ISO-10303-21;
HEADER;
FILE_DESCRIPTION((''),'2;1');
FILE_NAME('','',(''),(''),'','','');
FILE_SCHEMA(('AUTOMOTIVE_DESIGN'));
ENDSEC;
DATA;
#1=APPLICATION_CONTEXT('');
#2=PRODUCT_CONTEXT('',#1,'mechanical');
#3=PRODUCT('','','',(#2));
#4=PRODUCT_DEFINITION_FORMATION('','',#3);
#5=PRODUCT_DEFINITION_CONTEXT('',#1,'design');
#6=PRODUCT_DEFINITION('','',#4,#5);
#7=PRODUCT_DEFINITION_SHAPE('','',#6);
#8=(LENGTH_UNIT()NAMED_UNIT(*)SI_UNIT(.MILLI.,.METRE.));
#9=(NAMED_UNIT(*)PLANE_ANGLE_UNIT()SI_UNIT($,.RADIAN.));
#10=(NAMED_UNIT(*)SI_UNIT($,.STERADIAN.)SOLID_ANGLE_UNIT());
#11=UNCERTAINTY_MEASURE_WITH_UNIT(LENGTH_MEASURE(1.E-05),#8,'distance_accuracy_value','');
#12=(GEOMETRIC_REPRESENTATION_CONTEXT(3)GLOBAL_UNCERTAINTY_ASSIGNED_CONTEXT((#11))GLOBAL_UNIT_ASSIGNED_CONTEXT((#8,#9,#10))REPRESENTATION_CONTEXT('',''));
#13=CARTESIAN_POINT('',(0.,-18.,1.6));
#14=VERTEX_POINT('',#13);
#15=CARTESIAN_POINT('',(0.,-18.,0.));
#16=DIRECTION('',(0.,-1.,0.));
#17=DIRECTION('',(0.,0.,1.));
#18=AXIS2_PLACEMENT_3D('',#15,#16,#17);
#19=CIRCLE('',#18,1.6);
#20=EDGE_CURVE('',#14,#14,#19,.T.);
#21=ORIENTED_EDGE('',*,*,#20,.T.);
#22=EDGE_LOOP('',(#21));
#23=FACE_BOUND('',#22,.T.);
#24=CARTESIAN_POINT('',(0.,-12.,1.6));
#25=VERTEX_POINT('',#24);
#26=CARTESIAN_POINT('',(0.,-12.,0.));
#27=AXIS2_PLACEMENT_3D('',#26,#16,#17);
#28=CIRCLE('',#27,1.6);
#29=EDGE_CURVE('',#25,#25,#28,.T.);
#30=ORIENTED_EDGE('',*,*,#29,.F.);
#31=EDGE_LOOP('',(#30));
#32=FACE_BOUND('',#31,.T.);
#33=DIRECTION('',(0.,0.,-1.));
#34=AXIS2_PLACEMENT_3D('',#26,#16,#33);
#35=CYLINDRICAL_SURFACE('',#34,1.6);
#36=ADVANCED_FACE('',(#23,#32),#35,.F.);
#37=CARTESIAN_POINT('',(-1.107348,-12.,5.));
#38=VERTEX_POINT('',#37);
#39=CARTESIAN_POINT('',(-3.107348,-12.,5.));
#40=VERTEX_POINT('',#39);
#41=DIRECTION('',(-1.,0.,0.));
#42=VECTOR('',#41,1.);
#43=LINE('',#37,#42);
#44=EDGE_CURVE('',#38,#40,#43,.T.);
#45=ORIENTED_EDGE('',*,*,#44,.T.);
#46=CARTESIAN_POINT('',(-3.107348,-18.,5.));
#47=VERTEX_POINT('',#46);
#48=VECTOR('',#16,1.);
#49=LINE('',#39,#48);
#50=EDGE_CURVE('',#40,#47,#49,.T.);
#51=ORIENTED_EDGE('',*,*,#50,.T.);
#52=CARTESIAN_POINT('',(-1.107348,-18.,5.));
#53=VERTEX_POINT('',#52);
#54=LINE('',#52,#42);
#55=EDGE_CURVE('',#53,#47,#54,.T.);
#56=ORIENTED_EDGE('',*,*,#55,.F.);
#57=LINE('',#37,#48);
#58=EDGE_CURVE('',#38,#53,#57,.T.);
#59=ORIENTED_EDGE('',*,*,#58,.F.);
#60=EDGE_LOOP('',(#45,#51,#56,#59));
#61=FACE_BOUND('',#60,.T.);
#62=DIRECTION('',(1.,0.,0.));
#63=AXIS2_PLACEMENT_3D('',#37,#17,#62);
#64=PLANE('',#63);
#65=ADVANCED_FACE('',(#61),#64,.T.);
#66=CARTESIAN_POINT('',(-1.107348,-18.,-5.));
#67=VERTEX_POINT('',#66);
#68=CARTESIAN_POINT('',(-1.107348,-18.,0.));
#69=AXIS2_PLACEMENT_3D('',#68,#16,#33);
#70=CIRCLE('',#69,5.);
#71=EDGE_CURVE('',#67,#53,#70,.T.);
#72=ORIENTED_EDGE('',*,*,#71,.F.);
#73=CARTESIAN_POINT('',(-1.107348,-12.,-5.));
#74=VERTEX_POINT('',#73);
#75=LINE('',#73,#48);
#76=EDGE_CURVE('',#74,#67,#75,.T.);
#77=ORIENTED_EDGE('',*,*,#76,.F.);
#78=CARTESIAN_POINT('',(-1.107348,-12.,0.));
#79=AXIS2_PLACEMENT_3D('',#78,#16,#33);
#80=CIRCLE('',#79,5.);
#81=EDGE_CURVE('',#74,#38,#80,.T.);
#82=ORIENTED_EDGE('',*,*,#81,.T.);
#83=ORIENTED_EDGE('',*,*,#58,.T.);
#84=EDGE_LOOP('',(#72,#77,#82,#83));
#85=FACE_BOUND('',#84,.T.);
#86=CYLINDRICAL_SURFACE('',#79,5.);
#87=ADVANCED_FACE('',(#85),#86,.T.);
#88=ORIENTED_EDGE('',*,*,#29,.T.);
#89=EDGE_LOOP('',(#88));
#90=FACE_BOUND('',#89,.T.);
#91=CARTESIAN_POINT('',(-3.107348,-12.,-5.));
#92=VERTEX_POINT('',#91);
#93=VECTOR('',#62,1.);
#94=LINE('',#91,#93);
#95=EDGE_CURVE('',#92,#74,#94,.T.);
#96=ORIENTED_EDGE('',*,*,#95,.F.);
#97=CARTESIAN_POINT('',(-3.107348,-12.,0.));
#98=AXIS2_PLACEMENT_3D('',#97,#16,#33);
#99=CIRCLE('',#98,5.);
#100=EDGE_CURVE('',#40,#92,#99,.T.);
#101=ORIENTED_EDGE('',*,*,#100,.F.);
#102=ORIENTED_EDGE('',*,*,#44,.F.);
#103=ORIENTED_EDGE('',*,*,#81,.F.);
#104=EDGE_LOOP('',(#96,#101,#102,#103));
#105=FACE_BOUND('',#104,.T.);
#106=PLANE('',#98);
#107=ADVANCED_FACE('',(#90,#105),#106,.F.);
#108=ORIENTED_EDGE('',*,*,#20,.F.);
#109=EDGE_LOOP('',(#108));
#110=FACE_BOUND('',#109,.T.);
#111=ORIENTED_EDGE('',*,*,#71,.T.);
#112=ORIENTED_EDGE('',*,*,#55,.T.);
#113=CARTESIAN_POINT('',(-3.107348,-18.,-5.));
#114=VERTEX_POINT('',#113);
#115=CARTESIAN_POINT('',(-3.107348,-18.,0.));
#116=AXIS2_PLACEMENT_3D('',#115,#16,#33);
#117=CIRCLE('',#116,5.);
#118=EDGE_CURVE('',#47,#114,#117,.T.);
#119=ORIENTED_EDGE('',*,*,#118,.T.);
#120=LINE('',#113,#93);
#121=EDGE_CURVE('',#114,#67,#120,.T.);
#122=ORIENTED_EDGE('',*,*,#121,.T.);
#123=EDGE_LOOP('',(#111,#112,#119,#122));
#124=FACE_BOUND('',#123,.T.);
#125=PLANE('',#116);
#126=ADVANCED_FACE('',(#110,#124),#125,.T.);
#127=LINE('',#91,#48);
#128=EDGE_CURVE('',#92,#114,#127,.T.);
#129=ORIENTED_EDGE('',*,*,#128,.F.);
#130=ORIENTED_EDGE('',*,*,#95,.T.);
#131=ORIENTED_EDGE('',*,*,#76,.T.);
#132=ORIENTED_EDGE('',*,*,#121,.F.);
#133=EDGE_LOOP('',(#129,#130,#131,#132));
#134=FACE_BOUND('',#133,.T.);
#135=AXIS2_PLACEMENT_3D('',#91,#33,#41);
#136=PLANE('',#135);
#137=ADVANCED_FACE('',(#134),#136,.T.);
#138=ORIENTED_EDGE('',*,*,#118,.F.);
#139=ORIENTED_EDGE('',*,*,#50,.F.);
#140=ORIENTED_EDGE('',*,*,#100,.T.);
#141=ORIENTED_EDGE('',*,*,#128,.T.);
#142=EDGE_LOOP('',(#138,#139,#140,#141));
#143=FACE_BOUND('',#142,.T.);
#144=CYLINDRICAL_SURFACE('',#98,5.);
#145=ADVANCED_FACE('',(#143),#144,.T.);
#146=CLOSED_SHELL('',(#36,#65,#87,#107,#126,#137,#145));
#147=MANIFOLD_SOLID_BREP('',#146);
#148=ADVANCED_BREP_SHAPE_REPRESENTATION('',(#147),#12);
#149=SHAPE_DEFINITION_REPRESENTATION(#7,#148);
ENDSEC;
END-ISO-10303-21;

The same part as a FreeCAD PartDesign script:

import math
import FreeCAD as App
import Part
import Sketcher
Q = App.Units.Quantity

doc = App.newDocument("Part")
body = doc.addObject("PartDesign::Body", "Body")

# Sketch on XZ plane
sketch1 = body.newObject("Sketcher::SketchObject", "Sketch")
sketch1.AttachmentSupport = (doc.getObject("XZ_Plane"), [""])
sketch1.MapMode = "FlatFace"
sketch1.AttachmentOffset = App.Placement(App.Vector(0, 0, 18), App.Rotation())
sketch1.addGeometry([
    Part.LineSegment(App.Vector(-3.1, -5, 0), App.Vector(-1.1, -5, 0)),  # 0
    Part.ArcOfCircle(Part.Circle(App.Vector(-1.1, 0, 0), App.Vector(0, 0, 1), 5), math.radians(-90), math.radians(90)),  # 1
    Part.LineSegment(App.Vector(-1.1, 5, 0), App.Vector(-3.1, 5, 0)),  # 2
    Part.ArcOfCircle(Part.Circle(App.Vector(-3.1, 0, 0), App.Vector(0, 0, 1), 5), math.radians(90), math.radians(270)),  # 3
    Part.Circle(App.Vector(0, 0, 0), App.Vector(0, 0, 1), 1.6),  # 4
], False)
sketch1.addConstraint([
    Sketcher.Constraint("Tangent", 0, 2, 1, 1),
    Sketcher.Constraint("Tangent", 1, 2, 2, 1),
    Sketcher.Constraint("Tangent", 2, 2, 3, 1),
    Sketcher.Constraint("Tangent", 3, 2, 0, 1),
    Sketcher.Constraint("Horizontal", 0),
    Sketcher.Constraint("Horizontal", 2),
    Sketcher.Constraint("Coincident", 4, 3, -1, 1),
    Sketcher.Constraint("PointOnObject", 1, 3, -1),
    Sketcher.Constraint("Radius", 1, Q("5 mm")),
    Sketcher.Constraint("Diameter", 4, Q("3.2 mm")),
    Sketcher.Constraint("DistanceX", 0, 1, 0, 2, Q("2 mm")),
    Sketcher.Constraint("DistanceX", 1, 3, -1, 1, Q("1.107348 mm")),
])
pad1 = body.newObject("PartDesign::Pad", "Pad")
pad1.Profile = sketch1
pad1.Length = 6
pad1.Reversed = True

doc.recompute()
